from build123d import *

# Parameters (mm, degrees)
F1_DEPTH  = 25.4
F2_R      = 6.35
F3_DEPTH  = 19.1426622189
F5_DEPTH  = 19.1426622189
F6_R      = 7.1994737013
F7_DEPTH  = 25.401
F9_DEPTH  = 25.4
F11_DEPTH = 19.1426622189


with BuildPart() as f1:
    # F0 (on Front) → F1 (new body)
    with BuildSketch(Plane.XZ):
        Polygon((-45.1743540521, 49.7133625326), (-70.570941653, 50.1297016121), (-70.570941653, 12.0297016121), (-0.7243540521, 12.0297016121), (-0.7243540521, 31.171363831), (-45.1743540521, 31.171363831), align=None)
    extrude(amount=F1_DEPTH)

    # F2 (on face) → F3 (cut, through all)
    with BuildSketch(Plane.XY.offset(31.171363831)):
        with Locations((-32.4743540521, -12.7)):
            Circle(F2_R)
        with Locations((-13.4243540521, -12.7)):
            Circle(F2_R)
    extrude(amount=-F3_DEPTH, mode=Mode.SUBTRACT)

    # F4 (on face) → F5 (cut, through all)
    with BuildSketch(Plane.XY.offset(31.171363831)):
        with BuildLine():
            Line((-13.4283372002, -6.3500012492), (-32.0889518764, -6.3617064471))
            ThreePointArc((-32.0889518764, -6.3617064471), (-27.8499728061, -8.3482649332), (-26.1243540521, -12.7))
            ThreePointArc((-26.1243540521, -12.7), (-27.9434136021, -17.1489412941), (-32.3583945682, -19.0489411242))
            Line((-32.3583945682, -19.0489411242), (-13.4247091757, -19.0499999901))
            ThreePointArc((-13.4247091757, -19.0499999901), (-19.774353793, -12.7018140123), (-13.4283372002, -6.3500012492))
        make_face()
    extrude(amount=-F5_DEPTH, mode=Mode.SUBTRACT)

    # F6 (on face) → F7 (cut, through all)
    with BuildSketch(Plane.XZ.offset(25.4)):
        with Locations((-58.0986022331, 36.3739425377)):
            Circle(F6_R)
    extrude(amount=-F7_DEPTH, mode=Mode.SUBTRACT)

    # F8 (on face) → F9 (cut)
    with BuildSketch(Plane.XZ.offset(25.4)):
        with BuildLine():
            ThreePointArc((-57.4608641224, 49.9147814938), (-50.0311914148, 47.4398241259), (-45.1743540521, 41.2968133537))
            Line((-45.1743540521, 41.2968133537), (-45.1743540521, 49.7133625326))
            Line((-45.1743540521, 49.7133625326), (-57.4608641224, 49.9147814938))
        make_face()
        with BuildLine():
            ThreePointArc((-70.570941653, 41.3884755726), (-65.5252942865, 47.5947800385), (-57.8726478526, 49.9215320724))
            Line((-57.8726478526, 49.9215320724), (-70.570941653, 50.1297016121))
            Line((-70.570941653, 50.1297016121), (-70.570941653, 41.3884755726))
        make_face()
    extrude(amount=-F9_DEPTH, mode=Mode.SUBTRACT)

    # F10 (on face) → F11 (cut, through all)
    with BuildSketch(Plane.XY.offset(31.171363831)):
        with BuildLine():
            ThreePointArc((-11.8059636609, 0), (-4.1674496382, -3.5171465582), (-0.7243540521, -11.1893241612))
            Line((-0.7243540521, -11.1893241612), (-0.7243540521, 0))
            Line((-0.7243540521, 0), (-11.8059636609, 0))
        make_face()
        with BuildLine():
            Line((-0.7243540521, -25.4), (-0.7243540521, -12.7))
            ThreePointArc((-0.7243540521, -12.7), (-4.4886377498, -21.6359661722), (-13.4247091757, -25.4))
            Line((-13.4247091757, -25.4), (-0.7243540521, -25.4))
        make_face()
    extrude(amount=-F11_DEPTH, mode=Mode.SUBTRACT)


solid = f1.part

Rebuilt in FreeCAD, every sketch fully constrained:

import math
import FreeCAD as App
import Part
import Sketcher

V = App.Vector
Q = App.Units.Quantity


def add_polygon(sketch, points):
    """Adds a closed chain of lines whose ends are joined by coincident constraints."""
    first, n = sketch.GeometryCount, len(points)
    for a, b in zip(points, points[1:] + points[:1]):
        sketch.addGeometry(Part.LineSegment(App.Vector(*a, 0), App.Vector(*b, 0)), False)
    for i in range(n):
        sketch.addConstraint(Sketcher.Constraint("Coincident", first + i, 2, first + (i + 1) % n, 1))

doc = App.newDocument("Part")
params = doc.addObject("Spreadsheet::Sheet", "Params")
for row, (alias, value) in enumerate([
    ("sketch1_length", "1 in"),
    ("sketch1_height", "1.5 in"),
    ("sketch1_width", "1.75 in"),
    ("sketch1_height2", "0.7299999 in"),
    ("pad1_length", "1 in"),
    ("sketch2_diameter", "0.5 in"),
    ("sketch3_radius", "0.25 in"),
    ("sketch5_length", "0.5 in"),
    ("pocket4_length", "1 in"),
    ("sketch6_height", "0.5 in"),
], start=1):
    params.set(f"A{row}", alias)
    params.set(f"B{row}", "=" + value)
    params.setAlias(f"B{row}", alias)

body = doc.addObject("PartDesign::Body", "Body")

# Sketch on XZ plane
sketch1 = body.newObject("Sketcher::SketchObject", "Sketch")
sketch1.AttachmentSupport = (doc.getObject("XZ_Plane"), [""])
sketch1.MapMode = "FlatFace"
add_polygon(sketch1, [(-45.174354, 49.713363), (-70.570942, 50.129702), (-70.570942, 12.029702), (-0.724354, 12.029702), (-0.724354, 31.171364), (-45.174354, 31.171364)])  # lines 0-5
sketch1.addConstraint(Sketcher.Constraint("Vertical", 1))
sketch1.addConstraint(Sketcher.Constraint("Horizontal", 2))
sketch1.addConstraint(Sketcher.Constraint("Vertical", 3))
sketch1.addConstraint(Sketcher.Constraint("Horizontal", 4))
sketch1.addConstraint(Sketcher.Constraint("Vertical", 5))
sketch1.addConstraint(Sketcher.Constraint("Distance", 0, Q("1 in")))
sketch1.addConstraint(Sketcher.Constraint("DistanceY", 1, 2, 1, 1, Q("1.5 in")))
sketch1.addConstraint(Sketcher.Constraint("DistanceX", 4, 2, 4, 1, Q("1.75 in")))
sketch1.addConstraint(Sketcher.Constraint("DistanceY", 5, 1, 5, 2, Q("0.7299999 in")))
sketch1.addConstraint(Sketcher.Constraint("DistanceY", -1, 1, 0, 2, Q("50.129702 mm")))
sketch1.addConstraint(Sketcher.Constraint("DistanceX", 2, 1, 2, 2, Q("69.846588 mm")))
sketch1.addConstraint(Sketcher.Constraint("DistanceX", 0, 2, -1, 1, Q("70.570942 mm")))
sketch1.setExpression("Constraints[11]", "Params.sketch1_length")
sketch1.setExpression("Constraints[12]", "Params.sketch1_height")
sketch1.setExpression("Constraints[13]", "Params.sketch1_width")
sketch1.setExpression("Constraints[14]", "Params.sketch1_height2")
pad1 = body.newObject("PartDesign::Pad", "Pad")
pad1.Profile = sketch1
pad1.setExpression("Length", "Params.pad1_length")

# Sketch on XY plane
sketch2 = body.newObject("Sketcher::SketchObject", "Sketch001")
sketch2.AttachmentSupport = (doc.getObject("XY_Plane"), [""])
sketch2.MapMode = "FlatFace"
sketch2.AttachmentOffset = App.Placement(V(0, 0, 31.171364), App.Rotation())
sketch2.addGeometry(Part.Circle(V(-32, -13, 0), V(0, 0, 1), 6), False)
sketch2.addGeometry(Part.Circle(V(-13, -13, 0), V(0, 0, 1), 6), False)
sketch2.addConstraint(Sketcher.Constraint("Equal", 0, 1))
sketch2.addConstraint(Sketcher.Constraint("Horizontal", 0, 3, 1, 3))
sketch2.addConstraint(Sketcher.Constraint("Diameter", 0, Q("0.5 in")))
sketch2.addConstraint(Sketcher.Constraint("DistanceY", 0, 3, -1, 1, Q("0.5 in")))
sketch2.addConstraint(Sketcher.Constraint("DistanceX", 0, 3, 1, 3, Q("0.75 in")))
sketch2.addConstraint(Sketcher.Constraint("DistanceX", 0, 3, -1, 1, Q("32.474354 mm")))
sketch2.setExpression("Constraints[2]", "Params.sketch2_diameter")
pocket1 = body.newObject("PartDesign::Pocket", "Pocket")
pocket1.Profile = sketch2
pocket1.Type = "ThroughAll"

# Sketch on XY plane
sketch3 = body.newObject("Sketcher::SketchObject", "Sketch002")
sketch3.AttachmentSupport = (doc.getObject("XY_Plane"), [""])
sketch3.MapMode = "FlatFace"
sketch3.AttachmentOffset = App.Placement(V(0, 0, 31.171364), App.Rotation())
sketch3.addGeometry(Part.LineSegment(V(-13, -6, 0), V(-32, -6, 0)), False)
sketch3.addGeometry(Part.ArcOfCircle(Part.Circle(V(-32, -13, 0), V(0, 0, 1), 6), math.radians(0), math.radians(87)), False)
sketch3.addGeometry(Part.ArcOfCircle(Part.Circle(V(-32, -13, 0), V(0, 0, 1), 6), math.radians(-89), math.radians(0)), False)
sketch3.addGeometry(Part.LineSegment(V(-32, -19, 0), V(-13, -19, 0)), False)
sketch3.addGeometry(Part.ArcOfCircle(Part.Circle(V(-13, -13, 0), V(0, 0, 1), 6), math.radians(90), math.radians(270)), False)
sketch3.addConstraint(Sketcher.Constraint("Coincident", 0, 2, 1, 2))
sketch3.addConstraint(Sketcher.Constraint("Tangent", 1, 1, 2, 2))
sketch3.addConstraint(Sketcher.Constraint("Coincident", 2, 1, 3, 1))
sketch3.addConstraint(Sketcher.Constraint("Tangent", 3, 2, 4, 2))
sketch3.addConstraint(Sketcher.Constraint("Tangent", 4, 1, 0, 1))
sketch3.addConstraint(Sketcher.Constraint("Equal", 1, 2))
sketch3.addConstraint(Sketcher.Constraint("Equal", 2, 4))
sketch3.addConstraint(Sketcher.Constraint("Horizontal", 2, 3, 4, 3))
sketch3.addConstraint(Sketcher.Constraint("Horizontal", 4, 3, 1, 1))
sketch3.addConstraint(Sketcher.Constraint("Radius", 1, Q("0.25 in")))
sketch3.addConstraint(Sketcher.Constraint("DistanceY", 1, 3, -1, 1, Q("0.5 in")))
sketch3.addConstraint(Sketcher.Constraint("DistanceX", 1, 1, 4, 3, Q("0.5 in")))
sketch3.addConstraint(Sketcher.Constraint("Distance", 0, Q("18.660618 mm")))
sketch3.addConstraint(Sketcher.Constraint("DistanceX", 0, 2, -1, 1, Q("32.088952 mm")))
sketch3.addConstraint(Sketcher.Constraint("DistanceY", 2, 1, -1, 1, Q("19.048941 mm")))
sketch3.setExpression("Constraints[9]", "Params.sketch3_radius")
pocket2 = body.newObject("PartDesign::Pocket", "Pocket001")
pocket2.Profile = sketch3
pocket2.Type = "ThroughAll"

# Sketch on XZ plane
sketch4 = body.newObject("Sketcher::SketchObject", "Sketch003")
sketch4.AttachmentSupport = (doc.getObject("XZ_Plane"), [""])
sketch4.MapMode = "FlatFace"
sketch4.AttachmentOffset = App.Placement(V(0, 0, 1 * 25.4), App.Rotation())
sketch4.addGeometry(Part.Circle(V(-58, 36, 0), V(0, 0, 1), 7), False)
sketch4.addConstraint(Sketcher.Constraint("Diameter", 0, Q("14.398947 mm")))
sketch4.addConstraint(Sketcher.Constraint("DistanceX", 0, 3, -1, 1, Q("58.098602 mm")))
sketch4.addConstraint(Sketcher.Constraint("DistanceY", -1, 1, 0, 3, Q("36.373943 mm")))
pocket3 = body.newObject("PartDesign::Pocket", "Pocket002")
pocket3.Profile = sketch4
pocket3.Type = "ThroughAll"

# Sketch on XZ plane
sketch5 = body.newObject("Sketcher::SketchObject", "Sketch004")
sketch5.AttachmentSupport = (doc.getObject("XZ_Plane"), [""])
sketch5.MapMode = "FlatFace"
sketch5.AttachmentOffset = App.Placement(V(0, 0, 1 * 25.4), App.Rotation())
sketch5.addGeometry(Part.ArcOfCircle(Part.Circle(V(-58, 36, 0), V(0, 0, 1), 14), math.radians(22), math.radians(88)), False)
sketch5.addGeometry(Part.LineSegment(V(-45, 41, 0), V(-45, 50, 0)), False)
sketch5.addGeometry(Part.LineSegment(V(-45, 50, 0), V(-57, 50, 0)), False)
sketch5.addGeometry(Part.ArcOfCircle(Part.Circle(V(-58, 36, 0), V(0, 0, 1), 14), math.radians(90), math.radians(158)), False)
sketch5.addGeometry(Part.LineSegment(V(-58, 50, 0), V(-71, 50, 0)), False)
sketch5.addGeometry(Part.LineSegment(V(-71, 50, 0), V(-71, 41, 0)), False)
sketch5.addConstraint(Sketcher.Constraint("Coincident", 0, 1, 1, 1))
sketch5.addConstraint(Sketcher.Constraint("Coincident", 1, 2, 2, 1))
sketch5.addConstraint(Sketcher.Constraint("Coincident", 2, 2, 0, 2))
sketch5.addConstraint(Sketcher.Constraint("Coincident", 3, 1, 4, 1))
sketch5.addConstraint(Sketcher.Constraint("Coincident", 4, 2, 5, 1))
sketch5.addConstraint(Sketcher.Constraint("Coincident", 5, 2, 3, 2))
sketch5.addConstraint(Sketcher.Constraint("Vertical", 1))
sketch5.addConstraint(Sketcher.Constraint("Vertical", 5))
sketch5.addConstraint(Sketcher.Constraint("Coincident", 3, 3, 0, 3))
sketch5.addConstraint(Sketcher.Constraint("Equal", 0, 3))
sketch5.addConstraint(Sketcher.Constraint("Parallel", 2, 4))
sketch5.addConstraint(Sketcher.Constraint("Distance", 4, Q("0.5 in")))
sketch5.addConstraint(Sketcher.Constraint("Radius", 0, Q("13.687456 mm")))
sketch5.addConstraint(Sketcher.Constraint("DistanceY", 1, 1, 1, 2, Q("8.416549 mm")))
sketch5.addConstraint(Sketcher.Constraint("DistanceY", -1, 1, 4, 2, Q("50.129702 mm")))
sketch5.addConstraint(Sketcher.Constraint("Distance", 2, Q("12.288161 mm")))
sketch5.addConstraint(Sketcher.Constraint("DistanceY", 5, 2, 5, 1, Q("8.741226 mm")))
sketch5.addConstraint(Sketcher.Constraint("DistanceY", -1, 1, 0, 3, Q("36.234089 mm")))
sketch5.addConstraint(Sketcher.Constraint("DistanceX", 4, 2, -1, 1, Q("70.570942 mm")))
sketch5.setExpression("Constraints[11]", "Params.sketch5_length")
pocket4 = body.newObject("PartDesign::Pocket", "Pocket003")
pocket4.Profile = sketch5
pocket4.setExpression("Length", "Params.pocket4_length")

# Sketch on XY plane
sketch6 = body.newObject("Sketcher::SketchObject", "Sketch005")
sketch6.AttachmentSupport = (doc.getObject("XY_Plane"), [""])
sketch6.MapMode = "FlatFace"
sketch6.AttachmentOffset = App.Placement(V(0, 0, 31.171364), App.Rotation())
sketch6.addGeometry(Part.ArcOfCircle(Part.Circle(V(-13, -12, 0), V(0, 0, 1), 12), math.radians(4), math.radians(86)), False)
sketch6.addGeometry(Part.LineSegment(V(-1, -11, 0), V(-1, 0, 0)), False)
sketch6.addGeometry(Part.LineSegment(V(-1, 0, 0), V(-12, 0, 0)), False)
sketch6.addGeometry(Part.LineSegment(V(-1, -25, 0), V(-1, -13, 0)), False)
sketch6.addGeometry(Part.ArcOfCircle(Part.Circle(V(-14, -13, 0), V(0, 0, 1), 13), math.radians(-89), math.radians(-1)), False)
sketch6.addGeometry(Part.LineSegment(V(-13, -25, 0), V(-1, -25, 0)), False)
sketch6.addConstraint(Sketcher.Constraint("Coincident", 0, 1, 1, 1))
sketch6.addConstraint(Sketcher.Constraint("Coincident", 1, 2, 2, 1))
sketch6.addConstraint(Sketcher.Constraint("Coincident", 2, 2, 0, 2))
sketch6.addConstraint(Sketcher.Constraint("Coincident", 3, 2, 4, 2))
sketch6.addConstraint(Sketcher.Constraint("Coincident", 4, 1, 5, 1))
sketch6.addConstraint(Sketcher.Constraint("Coincident", 5, 2, 3, 1))
sketch6.addConstraint(Sketcher.Constraint("Vertical", 1))
sketch6.addConstraint(Sketcher.Constraint("Horizontal", 2))
sketch6.addConstraint(Sketcher.Constraint("Vertical", 3))
sketch6.addConstraint(Sketcher.Constraint("Horizontal", 5))
sketch6.addConstraint(Sketcher.Constraint("PointOnObject", 1, 2, -1))
sketch6.addConstraint(Sketcher.Constraint("Vertical", 1, 2, 3, 2))
sketch6.addConstraint(Sketcher.Constraint("DistanceY", 3, 1, 3, 2, Q("0.5 in")))
sketch6.addConstraint(Sketcher.Constraint("DistanceY", 4, 1, -1, 1, Q("1 in")))
sketch6.addConstraint(Sketcher.Constraint("Radius", 0, Q("11.97637 mm")))
sketch6.addConstraint(Sketcher.Constraint("Radius", 4, Q("12.854778 mm")))
sketch6.addConstraint(Sketcher.Constraint("DistanceX", 2, 2, 2, 1, Q("11.08161 mm")))
sketch6.addConstraint(Sketcher.Constraint("DistanceX", 5, 1, 5, 2, Q("12.700355 mm")))
sketch6.addConstraint(Sketcher.Constraint("DistanceY", 1, 1, 1, 2, Q("11.189324 mm")))
sketch6.addConstraint(Sketcher.Constraint("DistanceX", 0, 3, -1, 1, Q("12.676882 mm")))
sketch6.setExpression("Constraints[12]", "Params.sketch6_height")
pocket5 = body.newObject("PartDesign::Pocket", "Pocket004")
pocket5.Profile = sketch6
pocket5.Type = "ThroughAll"

doc.recompute()
